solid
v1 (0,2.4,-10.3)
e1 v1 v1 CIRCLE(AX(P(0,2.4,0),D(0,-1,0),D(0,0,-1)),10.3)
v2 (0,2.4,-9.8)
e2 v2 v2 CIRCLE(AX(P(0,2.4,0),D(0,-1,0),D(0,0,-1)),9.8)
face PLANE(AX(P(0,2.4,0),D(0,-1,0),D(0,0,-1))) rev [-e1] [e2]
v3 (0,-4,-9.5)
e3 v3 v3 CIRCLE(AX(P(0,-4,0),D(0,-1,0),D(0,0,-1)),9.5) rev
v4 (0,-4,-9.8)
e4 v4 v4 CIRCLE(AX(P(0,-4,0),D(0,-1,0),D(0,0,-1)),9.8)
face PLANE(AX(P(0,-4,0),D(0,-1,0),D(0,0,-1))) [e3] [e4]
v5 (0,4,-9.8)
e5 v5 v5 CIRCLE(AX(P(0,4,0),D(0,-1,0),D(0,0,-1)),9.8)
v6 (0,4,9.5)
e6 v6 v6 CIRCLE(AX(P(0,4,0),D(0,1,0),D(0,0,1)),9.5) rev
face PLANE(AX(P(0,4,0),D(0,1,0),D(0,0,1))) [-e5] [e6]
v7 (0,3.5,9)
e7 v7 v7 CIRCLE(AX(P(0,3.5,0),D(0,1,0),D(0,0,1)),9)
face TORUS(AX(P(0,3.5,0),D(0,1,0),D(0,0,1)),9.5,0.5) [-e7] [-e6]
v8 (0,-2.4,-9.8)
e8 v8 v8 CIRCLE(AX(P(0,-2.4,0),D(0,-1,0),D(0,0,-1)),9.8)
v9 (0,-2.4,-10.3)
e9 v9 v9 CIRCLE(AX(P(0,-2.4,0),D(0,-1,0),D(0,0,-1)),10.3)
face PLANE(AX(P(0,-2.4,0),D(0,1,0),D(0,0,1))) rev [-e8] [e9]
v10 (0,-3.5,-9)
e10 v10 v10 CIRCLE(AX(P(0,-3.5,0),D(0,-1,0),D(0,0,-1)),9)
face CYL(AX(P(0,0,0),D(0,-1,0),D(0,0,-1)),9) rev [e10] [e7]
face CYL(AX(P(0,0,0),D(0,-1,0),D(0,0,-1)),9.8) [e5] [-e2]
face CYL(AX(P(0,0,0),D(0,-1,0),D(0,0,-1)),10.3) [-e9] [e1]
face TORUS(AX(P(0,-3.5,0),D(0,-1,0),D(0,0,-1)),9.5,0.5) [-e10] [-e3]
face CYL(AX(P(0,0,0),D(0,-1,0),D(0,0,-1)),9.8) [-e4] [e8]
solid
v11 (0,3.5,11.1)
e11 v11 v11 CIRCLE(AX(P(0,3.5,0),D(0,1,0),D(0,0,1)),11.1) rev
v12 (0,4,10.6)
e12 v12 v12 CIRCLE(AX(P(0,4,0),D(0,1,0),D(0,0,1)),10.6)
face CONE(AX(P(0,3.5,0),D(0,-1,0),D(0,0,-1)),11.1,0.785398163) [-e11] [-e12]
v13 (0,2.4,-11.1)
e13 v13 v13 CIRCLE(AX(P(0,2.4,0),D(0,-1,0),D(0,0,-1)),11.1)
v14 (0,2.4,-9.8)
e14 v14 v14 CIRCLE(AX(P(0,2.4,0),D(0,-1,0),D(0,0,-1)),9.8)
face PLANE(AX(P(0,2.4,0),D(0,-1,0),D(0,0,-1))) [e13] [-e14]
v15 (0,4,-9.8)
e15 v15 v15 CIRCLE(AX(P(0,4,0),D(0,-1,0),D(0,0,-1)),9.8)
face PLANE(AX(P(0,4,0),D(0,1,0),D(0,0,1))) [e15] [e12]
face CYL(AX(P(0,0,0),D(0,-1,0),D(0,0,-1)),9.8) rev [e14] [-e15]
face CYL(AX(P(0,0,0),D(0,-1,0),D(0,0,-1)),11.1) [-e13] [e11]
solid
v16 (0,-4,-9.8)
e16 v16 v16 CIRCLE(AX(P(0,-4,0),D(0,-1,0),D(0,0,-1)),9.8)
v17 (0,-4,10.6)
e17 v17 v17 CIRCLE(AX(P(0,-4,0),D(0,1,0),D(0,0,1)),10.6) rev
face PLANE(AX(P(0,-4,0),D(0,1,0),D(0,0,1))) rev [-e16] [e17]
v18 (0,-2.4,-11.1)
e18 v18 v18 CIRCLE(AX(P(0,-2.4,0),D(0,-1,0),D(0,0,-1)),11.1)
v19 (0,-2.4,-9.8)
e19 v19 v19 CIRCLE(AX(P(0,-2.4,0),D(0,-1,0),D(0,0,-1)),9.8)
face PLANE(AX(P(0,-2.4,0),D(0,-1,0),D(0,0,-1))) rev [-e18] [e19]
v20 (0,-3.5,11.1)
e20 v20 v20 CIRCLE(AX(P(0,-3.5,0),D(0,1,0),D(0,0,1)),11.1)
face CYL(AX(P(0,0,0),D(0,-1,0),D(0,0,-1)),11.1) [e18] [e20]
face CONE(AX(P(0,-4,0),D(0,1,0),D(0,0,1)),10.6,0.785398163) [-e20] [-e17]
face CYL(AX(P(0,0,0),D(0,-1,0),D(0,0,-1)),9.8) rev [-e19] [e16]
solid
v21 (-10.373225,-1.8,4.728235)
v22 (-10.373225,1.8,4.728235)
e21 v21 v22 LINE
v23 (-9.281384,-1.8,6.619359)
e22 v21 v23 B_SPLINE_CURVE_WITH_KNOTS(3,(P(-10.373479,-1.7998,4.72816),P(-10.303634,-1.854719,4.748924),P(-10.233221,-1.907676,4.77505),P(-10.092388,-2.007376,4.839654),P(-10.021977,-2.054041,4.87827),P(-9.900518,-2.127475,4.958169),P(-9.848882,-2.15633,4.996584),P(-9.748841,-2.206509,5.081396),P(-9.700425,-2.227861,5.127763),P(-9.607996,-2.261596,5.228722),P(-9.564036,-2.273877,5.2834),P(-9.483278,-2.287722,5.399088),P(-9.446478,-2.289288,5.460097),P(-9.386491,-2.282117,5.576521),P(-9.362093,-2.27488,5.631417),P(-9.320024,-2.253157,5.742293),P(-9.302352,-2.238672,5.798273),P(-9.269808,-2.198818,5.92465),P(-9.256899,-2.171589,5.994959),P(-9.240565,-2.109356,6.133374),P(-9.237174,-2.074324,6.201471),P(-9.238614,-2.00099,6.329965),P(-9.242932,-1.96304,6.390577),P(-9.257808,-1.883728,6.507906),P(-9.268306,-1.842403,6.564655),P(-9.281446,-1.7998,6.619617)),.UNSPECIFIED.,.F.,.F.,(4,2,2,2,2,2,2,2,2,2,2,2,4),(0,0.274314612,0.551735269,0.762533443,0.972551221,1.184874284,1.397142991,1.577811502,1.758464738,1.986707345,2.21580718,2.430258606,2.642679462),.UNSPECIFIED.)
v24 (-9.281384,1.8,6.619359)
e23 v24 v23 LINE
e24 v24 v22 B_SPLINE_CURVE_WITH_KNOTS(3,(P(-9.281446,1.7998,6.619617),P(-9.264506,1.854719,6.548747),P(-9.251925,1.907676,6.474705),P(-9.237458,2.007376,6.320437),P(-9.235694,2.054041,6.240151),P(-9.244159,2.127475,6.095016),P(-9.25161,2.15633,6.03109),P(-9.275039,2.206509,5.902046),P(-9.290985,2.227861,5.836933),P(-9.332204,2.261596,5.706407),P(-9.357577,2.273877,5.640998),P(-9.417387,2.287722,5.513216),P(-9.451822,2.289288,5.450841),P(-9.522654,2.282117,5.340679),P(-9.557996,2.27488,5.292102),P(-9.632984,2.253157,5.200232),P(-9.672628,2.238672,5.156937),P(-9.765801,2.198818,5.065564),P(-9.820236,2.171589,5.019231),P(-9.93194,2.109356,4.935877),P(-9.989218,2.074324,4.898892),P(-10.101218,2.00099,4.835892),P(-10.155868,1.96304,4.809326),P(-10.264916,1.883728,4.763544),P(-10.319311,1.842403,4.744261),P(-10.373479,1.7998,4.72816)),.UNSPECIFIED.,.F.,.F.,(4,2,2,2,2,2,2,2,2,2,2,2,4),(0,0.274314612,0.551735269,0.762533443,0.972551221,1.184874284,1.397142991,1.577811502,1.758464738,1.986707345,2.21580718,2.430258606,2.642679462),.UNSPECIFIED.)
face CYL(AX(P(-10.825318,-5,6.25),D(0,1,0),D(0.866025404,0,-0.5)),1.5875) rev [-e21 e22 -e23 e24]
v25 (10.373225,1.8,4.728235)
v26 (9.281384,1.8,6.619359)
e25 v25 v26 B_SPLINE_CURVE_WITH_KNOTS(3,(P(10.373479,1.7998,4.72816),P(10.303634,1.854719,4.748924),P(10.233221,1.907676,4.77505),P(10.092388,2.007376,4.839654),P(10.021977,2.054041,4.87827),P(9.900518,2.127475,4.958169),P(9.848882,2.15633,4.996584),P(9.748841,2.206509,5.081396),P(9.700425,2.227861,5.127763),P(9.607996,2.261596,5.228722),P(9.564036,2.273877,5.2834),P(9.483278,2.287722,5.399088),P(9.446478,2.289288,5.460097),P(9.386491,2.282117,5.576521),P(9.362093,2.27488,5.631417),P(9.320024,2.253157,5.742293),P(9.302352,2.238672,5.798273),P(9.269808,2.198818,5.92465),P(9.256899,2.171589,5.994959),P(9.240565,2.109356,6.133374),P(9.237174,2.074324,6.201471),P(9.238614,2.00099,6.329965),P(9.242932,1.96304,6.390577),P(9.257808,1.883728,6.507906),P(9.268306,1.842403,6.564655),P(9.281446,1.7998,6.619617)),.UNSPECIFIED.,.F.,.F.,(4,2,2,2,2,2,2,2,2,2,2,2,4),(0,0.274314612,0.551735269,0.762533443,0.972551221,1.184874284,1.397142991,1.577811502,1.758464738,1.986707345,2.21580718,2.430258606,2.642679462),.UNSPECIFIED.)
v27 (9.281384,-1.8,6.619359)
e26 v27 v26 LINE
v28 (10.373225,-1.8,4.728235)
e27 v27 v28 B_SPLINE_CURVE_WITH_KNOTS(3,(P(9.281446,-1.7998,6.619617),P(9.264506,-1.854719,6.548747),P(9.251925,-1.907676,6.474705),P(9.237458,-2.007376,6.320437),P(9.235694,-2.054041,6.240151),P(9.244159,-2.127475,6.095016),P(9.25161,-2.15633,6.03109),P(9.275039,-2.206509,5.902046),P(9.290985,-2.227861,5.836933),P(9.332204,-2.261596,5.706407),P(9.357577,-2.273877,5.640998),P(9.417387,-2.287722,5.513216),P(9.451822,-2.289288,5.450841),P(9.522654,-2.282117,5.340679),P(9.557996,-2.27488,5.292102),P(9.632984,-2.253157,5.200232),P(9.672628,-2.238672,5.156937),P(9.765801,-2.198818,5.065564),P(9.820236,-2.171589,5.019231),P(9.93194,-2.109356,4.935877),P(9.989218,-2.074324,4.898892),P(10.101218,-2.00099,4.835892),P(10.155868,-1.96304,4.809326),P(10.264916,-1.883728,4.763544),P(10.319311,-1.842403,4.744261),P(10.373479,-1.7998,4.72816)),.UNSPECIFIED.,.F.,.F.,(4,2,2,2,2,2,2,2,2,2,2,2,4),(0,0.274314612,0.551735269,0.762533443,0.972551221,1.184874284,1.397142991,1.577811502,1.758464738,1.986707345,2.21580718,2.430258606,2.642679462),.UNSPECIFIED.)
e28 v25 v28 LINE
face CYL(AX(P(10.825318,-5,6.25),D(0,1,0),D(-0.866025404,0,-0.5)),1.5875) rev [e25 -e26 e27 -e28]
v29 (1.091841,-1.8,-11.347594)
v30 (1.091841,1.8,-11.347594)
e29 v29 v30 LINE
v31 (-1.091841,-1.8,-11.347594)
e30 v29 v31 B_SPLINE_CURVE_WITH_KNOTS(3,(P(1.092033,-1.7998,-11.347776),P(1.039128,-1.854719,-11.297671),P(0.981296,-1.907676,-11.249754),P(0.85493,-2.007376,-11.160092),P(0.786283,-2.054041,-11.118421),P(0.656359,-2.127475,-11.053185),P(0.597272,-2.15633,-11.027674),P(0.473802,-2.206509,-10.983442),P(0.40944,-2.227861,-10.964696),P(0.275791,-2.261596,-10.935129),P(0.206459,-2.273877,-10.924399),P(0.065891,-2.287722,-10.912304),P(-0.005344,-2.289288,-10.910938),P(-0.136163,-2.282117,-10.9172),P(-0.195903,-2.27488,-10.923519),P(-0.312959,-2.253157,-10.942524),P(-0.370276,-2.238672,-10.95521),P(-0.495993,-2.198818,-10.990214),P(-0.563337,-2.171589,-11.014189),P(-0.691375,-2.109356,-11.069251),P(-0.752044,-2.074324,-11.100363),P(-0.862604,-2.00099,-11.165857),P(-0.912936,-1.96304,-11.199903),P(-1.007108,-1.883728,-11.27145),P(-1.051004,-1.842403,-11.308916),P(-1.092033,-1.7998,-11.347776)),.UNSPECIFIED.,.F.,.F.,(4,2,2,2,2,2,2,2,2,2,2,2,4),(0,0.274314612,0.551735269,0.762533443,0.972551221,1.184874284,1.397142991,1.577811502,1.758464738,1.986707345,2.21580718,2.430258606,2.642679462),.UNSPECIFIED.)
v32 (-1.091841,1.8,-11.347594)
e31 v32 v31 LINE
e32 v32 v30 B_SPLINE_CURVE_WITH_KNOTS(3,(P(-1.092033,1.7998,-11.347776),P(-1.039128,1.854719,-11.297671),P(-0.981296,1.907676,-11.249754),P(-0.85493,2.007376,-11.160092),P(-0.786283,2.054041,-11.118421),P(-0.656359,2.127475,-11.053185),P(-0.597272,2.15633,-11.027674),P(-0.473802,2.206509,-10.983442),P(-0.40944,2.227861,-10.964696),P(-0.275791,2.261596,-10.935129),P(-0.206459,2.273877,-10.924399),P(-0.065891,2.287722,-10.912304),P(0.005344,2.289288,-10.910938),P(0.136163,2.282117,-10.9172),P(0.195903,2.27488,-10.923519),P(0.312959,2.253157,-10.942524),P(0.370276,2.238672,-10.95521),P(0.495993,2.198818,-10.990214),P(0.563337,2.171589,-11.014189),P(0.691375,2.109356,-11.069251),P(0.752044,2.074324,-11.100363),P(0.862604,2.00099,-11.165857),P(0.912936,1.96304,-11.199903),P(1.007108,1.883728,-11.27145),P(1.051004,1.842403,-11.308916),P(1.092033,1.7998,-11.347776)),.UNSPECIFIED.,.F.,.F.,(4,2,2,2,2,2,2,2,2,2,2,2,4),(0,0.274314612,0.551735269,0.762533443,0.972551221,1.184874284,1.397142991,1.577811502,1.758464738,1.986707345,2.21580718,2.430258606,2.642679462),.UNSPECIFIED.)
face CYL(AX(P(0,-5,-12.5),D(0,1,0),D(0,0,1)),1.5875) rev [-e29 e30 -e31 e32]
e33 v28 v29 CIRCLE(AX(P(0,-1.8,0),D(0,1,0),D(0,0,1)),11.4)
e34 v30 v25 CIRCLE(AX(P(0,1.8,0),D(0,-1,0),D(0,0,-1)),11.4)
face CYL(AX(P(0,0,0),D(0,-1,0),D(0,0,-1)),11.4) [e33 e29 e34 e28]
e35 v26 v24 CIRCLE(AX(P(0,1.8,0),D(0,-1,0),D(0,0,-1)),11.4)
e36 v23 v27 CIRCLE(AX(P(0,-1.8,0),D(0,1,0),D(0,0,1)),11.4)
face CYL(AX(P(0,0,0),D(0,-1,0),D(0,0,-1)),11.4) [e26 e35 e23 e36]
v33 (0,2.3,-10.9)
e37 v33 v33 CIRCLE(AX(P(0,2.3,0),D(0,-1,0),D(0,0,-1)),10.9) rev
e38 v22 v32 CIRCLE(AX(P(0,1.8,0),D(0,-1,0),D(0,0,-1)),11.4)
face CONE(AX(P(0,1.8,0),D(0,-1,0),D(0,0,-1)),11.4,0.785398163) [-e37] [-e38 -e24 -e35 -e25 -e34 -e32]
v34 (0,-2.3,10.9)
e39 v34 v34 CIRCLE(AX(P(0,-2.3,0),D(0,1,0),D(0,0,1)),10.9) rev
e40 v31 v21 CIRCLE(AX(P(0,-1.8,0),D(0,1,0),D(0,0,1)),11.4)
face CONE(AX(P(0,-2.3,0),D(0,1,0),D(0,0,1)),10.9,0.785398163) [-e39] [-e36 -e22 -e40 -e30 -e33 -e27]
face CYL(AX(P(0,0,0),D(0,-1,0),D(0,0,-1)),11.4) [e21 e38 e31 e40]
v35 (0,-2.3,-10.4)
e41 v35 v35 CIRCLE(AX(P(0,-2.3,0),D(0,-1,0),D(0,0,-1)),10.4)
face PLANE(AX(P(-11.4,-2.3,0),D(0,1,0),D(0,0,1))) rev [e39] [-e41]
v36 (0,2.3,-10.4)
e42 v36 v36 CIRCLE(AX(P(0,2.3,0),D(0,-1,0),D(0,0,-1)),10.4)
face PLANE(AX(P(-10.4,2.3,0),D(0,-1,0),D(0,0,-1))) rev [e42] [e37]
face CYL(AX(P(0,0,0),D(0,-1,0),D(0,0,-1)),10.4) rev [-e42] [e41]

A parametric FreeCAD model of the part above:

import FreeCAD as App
import Part
import Sketcher

V = App.Vector


def edges_at(feature, points):
    """Names of the edges that pass closest to the given points."""
    edges = feature.Shape.Edges
    near = lambda p: min(range(len(edges)), key=lambda i: edges[i].distToShape(Part.Vertex(*p))[0])
    return sorted({f"Edge{near(p) + 1}" for p in points})


def add_polygon(sketch, points):
    """Adds a closed chain of lines whose ends are joined by coincident constraints."""
    first, n = sketch.GeometryCount, len(points)
    for a, b in zip(points, points[1:] + points[:1]):
        sketch.addGeometry(Part.LineSegment(App.Vector(*a, 0), App.Vector(*b, 0)), False)
    for i in range(n):
        sketch.addConstraint(Sketcher.Constraint("Coincident", first + i, 2, first + (i + 1) % n, 1))

doc = App.newDocument("Part")
body = doc.addObject("PartDesign::Body", "Body")
body.AllowCompound = True

# Sketch on XY plane
sketch1 = body.newObject("Sketcher::SketchObject", "Sketch")
sketch1.AttachmentSupport = (doc.getObject("XY_Plane"), [""])
sketch1.MapMode = "FlatFace"
add_polygon(sketch1, [(-10.3, -2.4), (-9.8, -2.4), (-9.8, -4), (-9, -4), (-9, 4), (-9.8, 4), (-9.8, 2.4), (-10.3, 2.4)])  # lines 0-7
add_polygon(sketch1, [(-11.4, 2.3), (-11.4, -2.3), (-10.4, -2.3), (-10.4, 2.3)])  # lines 8-11
sketch1.addConstraint([
    Sketcher.Constraint("Horizontal", 0),
    Sketcher.Constraint("Vertical", 1),
    Sketcher.Constraint("Horizontal", 2),
    Sketcher.Constraint("Vertical", 3),
    Sketcher.Constraint("Horizontal", 4),
    Sketcher.Constraint("Vertical", 5),
    Sketcher.Constraint("Horizontal", 6),
    Sketcher.Constraint("Vertical", 7),
    Sketcher.Constraint("Vertical", 8),
    Sketcher.Constraint("Horizontal", 9),
    Sketcher.Constraint("Vertical", 10),
    Sketcher.Constraint("Horizontal", 11),
    Sketcher.Constraint("Symmetric", 1, 2, 4, 2, -1),
    Sketcher.Constraint("Equal", 1, 5),
    Sketcher.Constraint("DistanceX", 9, 1, 9, 2, 1.0),
    Sketcher.Constraint("DistanceY", 3, 1, 3, 2, 8.0),
    Sketcher.Constraint("DistanceX", 0, 1, 0, 2, 0.5),
    Sketcher.Constraint("DistanceX", 2, 1, 2, 2, 0.8),
    Sketcher.Constraint("DistanceY", 1, 2, 1, 1, 1.6),
    Sketcher.Constraint("DistanceY", 8, 2, 8, 1, 4.6),
    Sketcher.Constraint("DistanceX", 2, 2, -1, 1, 9.0),
    Sketcher.Constraint("DistanceX", 8, 2, -1, 1, 11.4),
    Sketcher.Constraint("DistanceY", 8, 2, -1, 1, 2.3),
])
revolution = body.newObject("PartDesign::Revolution", "Revolution")
revolution.Profile = sketch1
revolution.ReferenceAxis = (sketch1, ["V_Axis"])
revolution.Angle = 360
doc.recompute()

fillet = body.newObject("PartDesign::Fillet", "Fillet")
fillet.Base = (revolution, edges_at(revolution, [(0, -4, 9), (0, 4, 9)]))
fillet.Radius = 0.5
doc.recompute()

chamfer = body.newObject("PartDesign::Chamfer", "Chamfer")
chamfer.Base = (fillet, edges_at(fillet, [(0, -2.3, 11.4), (0, 2.3, 11.4)]))
chamfer.Size = 0.5

# Sketch on XZ plane
sketch2 = body.newObject("Sketcher::SketchObject", "Sketch001")
sketch2.AttachmentSupport = (doc.getObject("XZ_Plane"), [""])
sketch2.MapMode = "FlatFace"
sketch2.addGeometry(Part.Circle(V(0, -12.5, 0), V(0, 0, 1), 1.6), False)
sketch2.addConstraint([
    Sketcher.Constraint("PointOnObject", 0, 3, -2),
    Sketcher.Constraint("Diameter", 0, 3.175),
    Sketcher.Constraint("DistanceY", 0, 3, -1, 1, 12.5),
])
pocket1 = body.newObject("PartDesign::Pocket", "Pocket")
pocket1.Profile = sketch2
pocket1.Length = 10
pocket1.Midplane = True
doc.recompute()

polarpattern = body.newObject("PartDesign::PolarPattern", "PolarPattern")
polarpattern.Originals = [pocket1]
polarpattern.Axis = (doc.getObject("Y_Axis"), [""])
polarpattern.Angle = 360
polarpattern.Occurrences = 3
body.Tip = polarpattern
body2 = doc.addObject("PartDesign::Body", "Body001")
body2.AllowCompound = True

# Sketch on XY plane
sketch3 = body2.newObject("Sketcher::SketchObject", "Sketch002")
sketch3.AttachmentSupport = (doc.getObject("XY_Plane001"), [""])
sketch3.MapMode = "FlatFace"
add_polygon(sketch3, [(-9.8, 4), (-11.1, 4), (-11.1, 2.4), (-9.8, 2.4)])  # lines 0-3
add_polygon(sketch3, [(-11.1, -2.4), (-11.1, -4), (-9.8, -4), (-9.8, -2.4)])  # lines 4-7
sketch3.addConstraint([
    Sketcher.Constraint("Horizontal", 0),
    Sketcher.Constraint("Vertical", 1),
    Sketcher.Constraint("Horizontal", 2),
    Sketcher.Constraint("Vertical", 3),
    Sketcher.Constraint("Vertical", 4),
    Sketcher.Constraint("Horizontal", 5),
    Sketcher.Constraint("Vertical", 6),
    Sketcher.Constraint("Horizontal", 7),
    Sketcher.Constraint("Symmetric", 0, 2, 4, 2, -1),
    Sketcher.Constraint("Symmetric", 2, 2, 6, 2, -1),
    Sketcher.Constraint("DistanceX", 0, 2, 0, 1, 1.3),
    Sketcher.Constraint("DistanceY", 1, 2, 1, 1, 1.6),
    Sketcher.Constraint("DistanceY", -1, 1, 0, 2, 4.0),
    Sketcher.Constraint("DistanceX", 0, 2, -1, 1, 11.1),
])
revolution2 = body2.newObject("PartDesign::Revolution", "Revolution001")
revolution2.Profile = sketch3
revolution2.ReferenceAxis = (sketch3, ["V_Axis"])
revolution2.Angle = 360
doc.recompute()

chamfer2 = body2.newObject("PartDesign::Chamfer", "Chamfer001")
chamfer2.Base = (revolution2, edges_at(revolution2, [(0, 4, 11.1)]))
chamfer2.Size = 0.5
doc.recompute()

chamfer3 = body2.newObject("PartDesign::Chamfer", "Chamfer002")
chamfer3.Base = (chamfer2, edges_at(chamfer2, [(0, -4, 11.1)]))
chamfer3.Size = 0.5

doc.recompute()
